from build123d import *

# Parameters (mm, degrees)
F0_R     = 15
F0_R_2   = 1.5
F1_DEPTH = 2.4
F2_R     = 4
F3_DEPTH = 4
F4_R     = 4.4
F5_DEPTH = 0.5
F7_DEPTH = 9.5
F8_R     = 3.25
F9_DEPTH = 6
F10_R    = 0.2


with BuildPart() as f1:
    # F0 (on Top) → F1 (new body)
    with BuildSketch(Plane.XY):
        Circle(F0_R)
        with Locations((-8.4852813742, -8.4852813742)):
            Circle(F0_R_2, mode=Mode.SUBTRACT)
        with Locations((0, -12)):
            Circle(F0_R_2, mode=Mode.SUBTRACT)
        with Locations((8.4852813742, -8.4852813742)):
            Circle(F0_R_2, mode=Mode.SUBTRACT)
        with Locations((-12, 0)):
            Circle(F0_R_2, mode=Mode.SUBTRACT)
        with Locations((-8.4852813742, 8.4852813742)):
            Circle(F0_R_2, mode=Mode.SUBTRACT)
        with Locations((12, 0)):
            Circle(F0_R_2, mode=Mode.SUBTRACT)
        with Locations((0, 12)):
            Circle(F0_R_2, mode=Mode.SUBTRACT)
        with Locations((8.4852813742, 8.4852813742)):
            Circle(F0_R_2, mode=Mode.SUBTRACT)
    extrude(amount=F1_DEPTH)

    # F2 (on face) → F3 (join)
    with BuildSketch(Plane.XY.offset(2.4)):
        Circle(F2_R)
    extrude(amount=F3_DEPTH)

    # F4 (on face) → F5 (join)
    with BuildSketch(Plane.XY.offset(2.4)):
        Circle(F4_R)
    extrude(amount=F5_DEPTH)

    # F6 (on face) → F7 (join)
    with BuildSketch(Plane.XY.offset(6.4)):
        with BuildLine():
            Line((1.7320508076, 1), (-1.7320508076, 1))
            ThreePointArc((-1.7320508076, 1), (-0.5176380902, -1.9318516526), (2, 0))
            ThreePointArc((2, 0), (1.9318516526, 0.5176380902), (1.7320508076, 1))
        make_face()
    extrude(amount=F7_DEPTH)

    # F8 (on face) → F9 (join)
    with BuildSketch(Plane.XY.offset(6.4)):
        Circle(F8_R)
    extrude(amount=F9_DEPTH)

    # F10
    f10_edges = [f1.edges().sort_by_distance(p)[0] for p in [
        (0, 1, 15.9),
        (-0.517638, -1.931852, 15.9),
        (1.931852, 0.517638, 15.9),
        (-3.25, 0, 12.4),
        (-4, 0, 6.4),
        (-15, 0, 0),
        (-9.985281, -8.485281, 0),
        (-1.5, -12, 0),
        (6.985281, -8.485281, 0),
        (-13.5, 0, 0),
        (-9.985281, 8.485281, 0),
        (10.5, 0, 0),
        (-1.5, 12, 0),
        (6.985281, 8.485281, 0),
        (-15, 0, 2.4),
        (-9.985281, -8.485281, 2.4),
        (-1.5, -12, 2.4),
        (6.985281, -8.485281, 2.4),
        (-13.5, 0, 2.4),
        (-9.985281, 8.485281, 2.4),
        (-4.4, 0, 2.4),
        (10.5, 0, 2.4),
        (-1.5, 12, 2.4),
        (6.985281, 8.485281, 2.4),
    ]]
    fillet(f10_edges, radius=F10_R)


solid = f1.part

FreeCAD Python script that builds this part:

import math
import FreeCAD as App
import Part
import Sketcher

V = App.Vector
Q = App.Units.Quantity


def edges_at(feature, points):
    """Names of the edges that pass closest to the given points."""
    edges = feature.Shape.Edges
    near = lambda p: min(range(len(edges)), key=lambda i: edges[i].distToShape(Part.Vertex(*p))[0])
    return sorted({f"Edge{near(p) + 1}" for p in points})

doc = App.newDocument("Part")
body = doc.addObject("PartDesign::Body", "Body")

# Sketch on XY plane
sketch1 = body.newObject("Sketcher::SketchObject", "Sketch")
sketch1.AttachmentSupport = (doc.getObject("XY_Plane"), [""])
sketch1.MapMode = "FlatFace"
sketch1.addGeometry(Part.Circle(V(0, 0, 0), V(0, 0, 1), 15), False)
sketch1.addGeometry(Part.Circle(V(-8.5, -8.5, 0), V(0, 0, 1), 1.5), False)
sketch1.addGeometry(Part.Circle(V(0, -12, 0), V(0, 0, 1), 1.5), False)
sketch1.addGeometry(Part.Circle(V(8.5, -8.5, 0), V(0, 0, 1), 1.5), False)
sketch1.addGeometry(Part.Circle(V(-12, 0, 0), V(0, 0, 1), 1.5), False)
sketch1.addGeometry(Part.Circle(V(-8.5, 8.5, 0), V(0, 0, 1), 1.5), False)
sketch1.addGeometry(Part.Circle(V(12, 0, 0), V(0, 0, 1), 1.5), False)
sketch1.addGeometry(Part.Circle(V(0, 12, 0), V(0, 0, 1), 1.5), False)
sketch1.addGeometry(Part.Circle(V(8.5, 8.5, 0), V(0, 0, 1), 1.5), False)
sketch1.addConstraint(Sketcher.Constraint("Coincident", 0, 3, -1, 1))
sketch1.addConstraint(Sketcher.Constraint("Equal", 1, 2))
sketch1.addConstraint(Sketcher.Constraint("Equal", 2, 3))
sketch1.addConstraint(Sketcher.Constraint("Equal", 3, 4))
sketch1.addConstraint(Sketcher.Constraint("Equal", 4, 5))
sketch1.addConstraint(Sketcher.Constraint("Equal", 5, 6))
sketch1.addConstraint(Sketcher.Constraint("Equal", 6, 7))
sketch1.addConstraint(Sketcher.Constraint("Equal", 7, 8))
sketch1.addConstraint(Sketcher.Constraint("Symmetric", 3, 3, 5, 3, -1, 1))
sketch1.addConstraint(Sketcher.Constraint("Symmetric", 4, 3, 6, 3, -1, 1))
sketch1.addConstraint(Sketcher.Constraint("Symmetric", 2, 3, 7, 3, -1, 1))
sketch1.addConstraint(Sketcher.Constraint("Symmetric", 1, 3, 8, 3, -1, 1))
sketch1.addConstraint(Sketcher.Constraint("Symmetric", 1, 3, 3, 3, -2))
sketch1.addConstraint(Sketcher.Constraint("PointOnObject", 2, 3, -2))
sketch1.addConstraint(Sketcher.Constraint("PointOnObject", 4, 3, -1))
sketch1.addConstraint(Sketcher.Constraint("Diameter", 0, Q("30 mm")))
sketch1.addConstraint(Sketcher.Constraint("Diameter", 1, Q("3 mm")))
sketch1.addConstraint(Sketcher.Constraint("DistanceY", 2, 3, -1, 1, Q("12 mm")))
sketch1.addConstraint(Sketcher.Constraint("DistanceX", 4, 3, -1, 1, Q("12 mm")))
sketch1.addConstraint(Sketcher.Constraint("DistanceX", 1, 3, -1, 1, Q("8.485281 mm")))
sketch1.addConstraint(Sketcher.Constraint("DistanceY", 1, 3, -1, 1, Q("8.485281 mm")))
pad1 = body.newObject("PartDesign::Pad", "Pad")
pad1.Profile = sketch1
pad1.Length = 2.4

# Sketch on XY plane
sketch2 = body.newObject("Sketcher::SketchObject", "Sketch001")
sketch2.AttachmentSupport = (doc.getObject("XY_Plane"), [""])
sketch2.MapMode = "FlatFace"
sketch2.AttachmentOffset = App.Placement(V(0, 0, 2.4), App.Rotation())
sketch2.addGeometry(Part.Circle(V(0, 0, 0), V(0, 0, 1), 4), False)
sketch2.addConstraint(Sketcher.Constraint("Coincident", 0, 3, -1, 1))
sketch2.addConstraint(Sketcher.Constraint("Diameter", 0, Q("8 mm")))
pad2 = body.newObject("PartDesign::Pad", "Pad001")
pad2.Profile = sketch2
pad2.Length = 4

# Sketch on XY plane
sketch3 = body.newObject("Sketcher::SketchObject", "Sketch002")
sketch3.AttachmentSupport = (doc.getObject("XY_Plane"), [""])
sketch3.MapMode = "FlatFace"
sketch3.AttachmentOffset = App.Placement(V(0, 0, 2.4), App.Rotation())
sketch3.addGeometry(Part.Circle(V(0, 0, 0), V(0, 0, 1), 4.4), False)
sketch3.addConstraint(Sketcher.Constraint("Coincident", 0, 3, -1, 1))
sketch3.addConstraint(Sketcher.Constraint("Diameter", 0, Q("8.8 mm")))
pad3 = body.newObject("PartDesign::Pad", "Pad002")
pad3.Profile = sketch3
pad3.Length = 0.5

# Sketch on XY plane
sketch4 = body.newObject("Sketcher::SketchObject", "Sketch003")
sketch4.AttachmentSupport = (doc.getObject("XY_Plane"), [""])
sketch4.MapMode = "FlatFace"
sketch4.AttachmentOffset = App.Placement(V(0, 0, 6.4), App.Rotation())
sketch4.addGeometry(Part.LineSegment(V(1.7, 1, 0), V(-1.7, 1, 0)), False)
sketch4.addGeometry(Part.ArcOfCircle(Part.Circle(V(0, 0, 0), V(0, 0, 1), 2), math.radians(150), math.radians(360)), False)
sketch4.addGeometry(Part.ArcOfCircle(Part.Circle(V(0, 0, 0), V(0, 0, 1), 2), math.radians(0), math.radians(30)), False)
sketch4.addConstraint(Sketcher.Constraint("Coincident", 0, 2, 1, 1))
sketch4.addConstraint(Sketcher.Constraint("Tangent", 1, 2, 2, 1))
sketch4.addConstraint(Sketcher.Constraint("Coincident", 2, 2, 0, 1))
sketch4.addConstraint(Sketcher.Constraint("Horizontal", 0))
sketch4.addConstraint(Sketcher.Constraint("Coincident", 1, 3, -1, 1))
sketch4.addConstraint(Sketcher.Constraint("Equal", 1, 2))
sketch4.addConstraint(Sketcher.Constraint("PointOnObject", 1, 2, -1))
sketch4.addConstraint(Sketcher.Constraint("Radius", 1, Q("2 mm")))
sketch4.addConstraint(Sketcher.Constraint("DistanceY", -1, 1, 0, 2, Q("1 mm")))
pad4 = body.newObject("PartDesign::Pad", "Pad003")
pad4.Profile = sketch4
pad4.Length = 9.5

# Sketch on XY plane
sketch5 = body.newObject("Sketcher::SketchObject", "Sketch004")
sketch5.AttachmentSupport = (doc.getObject("XY_Plane"), [""])
sketch5.MapMode = "FlatFace"
sketch5.AttachmentOffset = App.Placement(V(0, 0, 6.4), App.Rotation())
sketch5.addGeometry(Part.Circle(V(0, 0, 0), V(0, 0, 1), 3.2), False)
sketch5.addConstraint(Sketcher.Constraint("Coincident", 0, 3, -1, 1))
sketch5.addConstraint(Sketcher.Constraint("Diameter", 0, Q("6.5 mm")))
pad5 = body.newObject("PartDesign::Pad", "Pad004")
pad5.Profile = sketch5
pad5.Length = 6
doc.recompute()

fillet = body.newObject("PartDesign::Fillet", "Fillet")
fillet.Base = (pad5, edges_at(pad5, [
    (0, 1, 15.9),
    (-0.518, -1.932, 15.9),
    (1.932, 0.518, 15.9),
    (-3.25, 0, 12.4),
    (-4, 0, 6.4),
    (-15, 0, 0),
    (-9.985, -8.485, 0),
    (-1.5, -12, 0),
    (6.985, -8.485, 0),
    (-13.5, 0, 0),
    (-9.985, 8.485, 0),
    (10.5, 0, 0),
    (-1.5, 12, 0),
    (6.985, 8.485, 0),
    (-15, 0, 2.4),
    (-9.985, -8.485, 2.4),
    (-1.5, -12, 2.4),
    (6.985, -8.485, 2.4),
    (-13.5, 0, 2.4),
    (-9.985, 8.485, 2.4),
    (-4.4, 0, 2.4),
    (10.5, 0, 2.4),
    (-1.5, 12, 2.4),
    (6.985, 8.485, 2.4),
]))
fillet.Radius = 0.2

doc.recompute()
